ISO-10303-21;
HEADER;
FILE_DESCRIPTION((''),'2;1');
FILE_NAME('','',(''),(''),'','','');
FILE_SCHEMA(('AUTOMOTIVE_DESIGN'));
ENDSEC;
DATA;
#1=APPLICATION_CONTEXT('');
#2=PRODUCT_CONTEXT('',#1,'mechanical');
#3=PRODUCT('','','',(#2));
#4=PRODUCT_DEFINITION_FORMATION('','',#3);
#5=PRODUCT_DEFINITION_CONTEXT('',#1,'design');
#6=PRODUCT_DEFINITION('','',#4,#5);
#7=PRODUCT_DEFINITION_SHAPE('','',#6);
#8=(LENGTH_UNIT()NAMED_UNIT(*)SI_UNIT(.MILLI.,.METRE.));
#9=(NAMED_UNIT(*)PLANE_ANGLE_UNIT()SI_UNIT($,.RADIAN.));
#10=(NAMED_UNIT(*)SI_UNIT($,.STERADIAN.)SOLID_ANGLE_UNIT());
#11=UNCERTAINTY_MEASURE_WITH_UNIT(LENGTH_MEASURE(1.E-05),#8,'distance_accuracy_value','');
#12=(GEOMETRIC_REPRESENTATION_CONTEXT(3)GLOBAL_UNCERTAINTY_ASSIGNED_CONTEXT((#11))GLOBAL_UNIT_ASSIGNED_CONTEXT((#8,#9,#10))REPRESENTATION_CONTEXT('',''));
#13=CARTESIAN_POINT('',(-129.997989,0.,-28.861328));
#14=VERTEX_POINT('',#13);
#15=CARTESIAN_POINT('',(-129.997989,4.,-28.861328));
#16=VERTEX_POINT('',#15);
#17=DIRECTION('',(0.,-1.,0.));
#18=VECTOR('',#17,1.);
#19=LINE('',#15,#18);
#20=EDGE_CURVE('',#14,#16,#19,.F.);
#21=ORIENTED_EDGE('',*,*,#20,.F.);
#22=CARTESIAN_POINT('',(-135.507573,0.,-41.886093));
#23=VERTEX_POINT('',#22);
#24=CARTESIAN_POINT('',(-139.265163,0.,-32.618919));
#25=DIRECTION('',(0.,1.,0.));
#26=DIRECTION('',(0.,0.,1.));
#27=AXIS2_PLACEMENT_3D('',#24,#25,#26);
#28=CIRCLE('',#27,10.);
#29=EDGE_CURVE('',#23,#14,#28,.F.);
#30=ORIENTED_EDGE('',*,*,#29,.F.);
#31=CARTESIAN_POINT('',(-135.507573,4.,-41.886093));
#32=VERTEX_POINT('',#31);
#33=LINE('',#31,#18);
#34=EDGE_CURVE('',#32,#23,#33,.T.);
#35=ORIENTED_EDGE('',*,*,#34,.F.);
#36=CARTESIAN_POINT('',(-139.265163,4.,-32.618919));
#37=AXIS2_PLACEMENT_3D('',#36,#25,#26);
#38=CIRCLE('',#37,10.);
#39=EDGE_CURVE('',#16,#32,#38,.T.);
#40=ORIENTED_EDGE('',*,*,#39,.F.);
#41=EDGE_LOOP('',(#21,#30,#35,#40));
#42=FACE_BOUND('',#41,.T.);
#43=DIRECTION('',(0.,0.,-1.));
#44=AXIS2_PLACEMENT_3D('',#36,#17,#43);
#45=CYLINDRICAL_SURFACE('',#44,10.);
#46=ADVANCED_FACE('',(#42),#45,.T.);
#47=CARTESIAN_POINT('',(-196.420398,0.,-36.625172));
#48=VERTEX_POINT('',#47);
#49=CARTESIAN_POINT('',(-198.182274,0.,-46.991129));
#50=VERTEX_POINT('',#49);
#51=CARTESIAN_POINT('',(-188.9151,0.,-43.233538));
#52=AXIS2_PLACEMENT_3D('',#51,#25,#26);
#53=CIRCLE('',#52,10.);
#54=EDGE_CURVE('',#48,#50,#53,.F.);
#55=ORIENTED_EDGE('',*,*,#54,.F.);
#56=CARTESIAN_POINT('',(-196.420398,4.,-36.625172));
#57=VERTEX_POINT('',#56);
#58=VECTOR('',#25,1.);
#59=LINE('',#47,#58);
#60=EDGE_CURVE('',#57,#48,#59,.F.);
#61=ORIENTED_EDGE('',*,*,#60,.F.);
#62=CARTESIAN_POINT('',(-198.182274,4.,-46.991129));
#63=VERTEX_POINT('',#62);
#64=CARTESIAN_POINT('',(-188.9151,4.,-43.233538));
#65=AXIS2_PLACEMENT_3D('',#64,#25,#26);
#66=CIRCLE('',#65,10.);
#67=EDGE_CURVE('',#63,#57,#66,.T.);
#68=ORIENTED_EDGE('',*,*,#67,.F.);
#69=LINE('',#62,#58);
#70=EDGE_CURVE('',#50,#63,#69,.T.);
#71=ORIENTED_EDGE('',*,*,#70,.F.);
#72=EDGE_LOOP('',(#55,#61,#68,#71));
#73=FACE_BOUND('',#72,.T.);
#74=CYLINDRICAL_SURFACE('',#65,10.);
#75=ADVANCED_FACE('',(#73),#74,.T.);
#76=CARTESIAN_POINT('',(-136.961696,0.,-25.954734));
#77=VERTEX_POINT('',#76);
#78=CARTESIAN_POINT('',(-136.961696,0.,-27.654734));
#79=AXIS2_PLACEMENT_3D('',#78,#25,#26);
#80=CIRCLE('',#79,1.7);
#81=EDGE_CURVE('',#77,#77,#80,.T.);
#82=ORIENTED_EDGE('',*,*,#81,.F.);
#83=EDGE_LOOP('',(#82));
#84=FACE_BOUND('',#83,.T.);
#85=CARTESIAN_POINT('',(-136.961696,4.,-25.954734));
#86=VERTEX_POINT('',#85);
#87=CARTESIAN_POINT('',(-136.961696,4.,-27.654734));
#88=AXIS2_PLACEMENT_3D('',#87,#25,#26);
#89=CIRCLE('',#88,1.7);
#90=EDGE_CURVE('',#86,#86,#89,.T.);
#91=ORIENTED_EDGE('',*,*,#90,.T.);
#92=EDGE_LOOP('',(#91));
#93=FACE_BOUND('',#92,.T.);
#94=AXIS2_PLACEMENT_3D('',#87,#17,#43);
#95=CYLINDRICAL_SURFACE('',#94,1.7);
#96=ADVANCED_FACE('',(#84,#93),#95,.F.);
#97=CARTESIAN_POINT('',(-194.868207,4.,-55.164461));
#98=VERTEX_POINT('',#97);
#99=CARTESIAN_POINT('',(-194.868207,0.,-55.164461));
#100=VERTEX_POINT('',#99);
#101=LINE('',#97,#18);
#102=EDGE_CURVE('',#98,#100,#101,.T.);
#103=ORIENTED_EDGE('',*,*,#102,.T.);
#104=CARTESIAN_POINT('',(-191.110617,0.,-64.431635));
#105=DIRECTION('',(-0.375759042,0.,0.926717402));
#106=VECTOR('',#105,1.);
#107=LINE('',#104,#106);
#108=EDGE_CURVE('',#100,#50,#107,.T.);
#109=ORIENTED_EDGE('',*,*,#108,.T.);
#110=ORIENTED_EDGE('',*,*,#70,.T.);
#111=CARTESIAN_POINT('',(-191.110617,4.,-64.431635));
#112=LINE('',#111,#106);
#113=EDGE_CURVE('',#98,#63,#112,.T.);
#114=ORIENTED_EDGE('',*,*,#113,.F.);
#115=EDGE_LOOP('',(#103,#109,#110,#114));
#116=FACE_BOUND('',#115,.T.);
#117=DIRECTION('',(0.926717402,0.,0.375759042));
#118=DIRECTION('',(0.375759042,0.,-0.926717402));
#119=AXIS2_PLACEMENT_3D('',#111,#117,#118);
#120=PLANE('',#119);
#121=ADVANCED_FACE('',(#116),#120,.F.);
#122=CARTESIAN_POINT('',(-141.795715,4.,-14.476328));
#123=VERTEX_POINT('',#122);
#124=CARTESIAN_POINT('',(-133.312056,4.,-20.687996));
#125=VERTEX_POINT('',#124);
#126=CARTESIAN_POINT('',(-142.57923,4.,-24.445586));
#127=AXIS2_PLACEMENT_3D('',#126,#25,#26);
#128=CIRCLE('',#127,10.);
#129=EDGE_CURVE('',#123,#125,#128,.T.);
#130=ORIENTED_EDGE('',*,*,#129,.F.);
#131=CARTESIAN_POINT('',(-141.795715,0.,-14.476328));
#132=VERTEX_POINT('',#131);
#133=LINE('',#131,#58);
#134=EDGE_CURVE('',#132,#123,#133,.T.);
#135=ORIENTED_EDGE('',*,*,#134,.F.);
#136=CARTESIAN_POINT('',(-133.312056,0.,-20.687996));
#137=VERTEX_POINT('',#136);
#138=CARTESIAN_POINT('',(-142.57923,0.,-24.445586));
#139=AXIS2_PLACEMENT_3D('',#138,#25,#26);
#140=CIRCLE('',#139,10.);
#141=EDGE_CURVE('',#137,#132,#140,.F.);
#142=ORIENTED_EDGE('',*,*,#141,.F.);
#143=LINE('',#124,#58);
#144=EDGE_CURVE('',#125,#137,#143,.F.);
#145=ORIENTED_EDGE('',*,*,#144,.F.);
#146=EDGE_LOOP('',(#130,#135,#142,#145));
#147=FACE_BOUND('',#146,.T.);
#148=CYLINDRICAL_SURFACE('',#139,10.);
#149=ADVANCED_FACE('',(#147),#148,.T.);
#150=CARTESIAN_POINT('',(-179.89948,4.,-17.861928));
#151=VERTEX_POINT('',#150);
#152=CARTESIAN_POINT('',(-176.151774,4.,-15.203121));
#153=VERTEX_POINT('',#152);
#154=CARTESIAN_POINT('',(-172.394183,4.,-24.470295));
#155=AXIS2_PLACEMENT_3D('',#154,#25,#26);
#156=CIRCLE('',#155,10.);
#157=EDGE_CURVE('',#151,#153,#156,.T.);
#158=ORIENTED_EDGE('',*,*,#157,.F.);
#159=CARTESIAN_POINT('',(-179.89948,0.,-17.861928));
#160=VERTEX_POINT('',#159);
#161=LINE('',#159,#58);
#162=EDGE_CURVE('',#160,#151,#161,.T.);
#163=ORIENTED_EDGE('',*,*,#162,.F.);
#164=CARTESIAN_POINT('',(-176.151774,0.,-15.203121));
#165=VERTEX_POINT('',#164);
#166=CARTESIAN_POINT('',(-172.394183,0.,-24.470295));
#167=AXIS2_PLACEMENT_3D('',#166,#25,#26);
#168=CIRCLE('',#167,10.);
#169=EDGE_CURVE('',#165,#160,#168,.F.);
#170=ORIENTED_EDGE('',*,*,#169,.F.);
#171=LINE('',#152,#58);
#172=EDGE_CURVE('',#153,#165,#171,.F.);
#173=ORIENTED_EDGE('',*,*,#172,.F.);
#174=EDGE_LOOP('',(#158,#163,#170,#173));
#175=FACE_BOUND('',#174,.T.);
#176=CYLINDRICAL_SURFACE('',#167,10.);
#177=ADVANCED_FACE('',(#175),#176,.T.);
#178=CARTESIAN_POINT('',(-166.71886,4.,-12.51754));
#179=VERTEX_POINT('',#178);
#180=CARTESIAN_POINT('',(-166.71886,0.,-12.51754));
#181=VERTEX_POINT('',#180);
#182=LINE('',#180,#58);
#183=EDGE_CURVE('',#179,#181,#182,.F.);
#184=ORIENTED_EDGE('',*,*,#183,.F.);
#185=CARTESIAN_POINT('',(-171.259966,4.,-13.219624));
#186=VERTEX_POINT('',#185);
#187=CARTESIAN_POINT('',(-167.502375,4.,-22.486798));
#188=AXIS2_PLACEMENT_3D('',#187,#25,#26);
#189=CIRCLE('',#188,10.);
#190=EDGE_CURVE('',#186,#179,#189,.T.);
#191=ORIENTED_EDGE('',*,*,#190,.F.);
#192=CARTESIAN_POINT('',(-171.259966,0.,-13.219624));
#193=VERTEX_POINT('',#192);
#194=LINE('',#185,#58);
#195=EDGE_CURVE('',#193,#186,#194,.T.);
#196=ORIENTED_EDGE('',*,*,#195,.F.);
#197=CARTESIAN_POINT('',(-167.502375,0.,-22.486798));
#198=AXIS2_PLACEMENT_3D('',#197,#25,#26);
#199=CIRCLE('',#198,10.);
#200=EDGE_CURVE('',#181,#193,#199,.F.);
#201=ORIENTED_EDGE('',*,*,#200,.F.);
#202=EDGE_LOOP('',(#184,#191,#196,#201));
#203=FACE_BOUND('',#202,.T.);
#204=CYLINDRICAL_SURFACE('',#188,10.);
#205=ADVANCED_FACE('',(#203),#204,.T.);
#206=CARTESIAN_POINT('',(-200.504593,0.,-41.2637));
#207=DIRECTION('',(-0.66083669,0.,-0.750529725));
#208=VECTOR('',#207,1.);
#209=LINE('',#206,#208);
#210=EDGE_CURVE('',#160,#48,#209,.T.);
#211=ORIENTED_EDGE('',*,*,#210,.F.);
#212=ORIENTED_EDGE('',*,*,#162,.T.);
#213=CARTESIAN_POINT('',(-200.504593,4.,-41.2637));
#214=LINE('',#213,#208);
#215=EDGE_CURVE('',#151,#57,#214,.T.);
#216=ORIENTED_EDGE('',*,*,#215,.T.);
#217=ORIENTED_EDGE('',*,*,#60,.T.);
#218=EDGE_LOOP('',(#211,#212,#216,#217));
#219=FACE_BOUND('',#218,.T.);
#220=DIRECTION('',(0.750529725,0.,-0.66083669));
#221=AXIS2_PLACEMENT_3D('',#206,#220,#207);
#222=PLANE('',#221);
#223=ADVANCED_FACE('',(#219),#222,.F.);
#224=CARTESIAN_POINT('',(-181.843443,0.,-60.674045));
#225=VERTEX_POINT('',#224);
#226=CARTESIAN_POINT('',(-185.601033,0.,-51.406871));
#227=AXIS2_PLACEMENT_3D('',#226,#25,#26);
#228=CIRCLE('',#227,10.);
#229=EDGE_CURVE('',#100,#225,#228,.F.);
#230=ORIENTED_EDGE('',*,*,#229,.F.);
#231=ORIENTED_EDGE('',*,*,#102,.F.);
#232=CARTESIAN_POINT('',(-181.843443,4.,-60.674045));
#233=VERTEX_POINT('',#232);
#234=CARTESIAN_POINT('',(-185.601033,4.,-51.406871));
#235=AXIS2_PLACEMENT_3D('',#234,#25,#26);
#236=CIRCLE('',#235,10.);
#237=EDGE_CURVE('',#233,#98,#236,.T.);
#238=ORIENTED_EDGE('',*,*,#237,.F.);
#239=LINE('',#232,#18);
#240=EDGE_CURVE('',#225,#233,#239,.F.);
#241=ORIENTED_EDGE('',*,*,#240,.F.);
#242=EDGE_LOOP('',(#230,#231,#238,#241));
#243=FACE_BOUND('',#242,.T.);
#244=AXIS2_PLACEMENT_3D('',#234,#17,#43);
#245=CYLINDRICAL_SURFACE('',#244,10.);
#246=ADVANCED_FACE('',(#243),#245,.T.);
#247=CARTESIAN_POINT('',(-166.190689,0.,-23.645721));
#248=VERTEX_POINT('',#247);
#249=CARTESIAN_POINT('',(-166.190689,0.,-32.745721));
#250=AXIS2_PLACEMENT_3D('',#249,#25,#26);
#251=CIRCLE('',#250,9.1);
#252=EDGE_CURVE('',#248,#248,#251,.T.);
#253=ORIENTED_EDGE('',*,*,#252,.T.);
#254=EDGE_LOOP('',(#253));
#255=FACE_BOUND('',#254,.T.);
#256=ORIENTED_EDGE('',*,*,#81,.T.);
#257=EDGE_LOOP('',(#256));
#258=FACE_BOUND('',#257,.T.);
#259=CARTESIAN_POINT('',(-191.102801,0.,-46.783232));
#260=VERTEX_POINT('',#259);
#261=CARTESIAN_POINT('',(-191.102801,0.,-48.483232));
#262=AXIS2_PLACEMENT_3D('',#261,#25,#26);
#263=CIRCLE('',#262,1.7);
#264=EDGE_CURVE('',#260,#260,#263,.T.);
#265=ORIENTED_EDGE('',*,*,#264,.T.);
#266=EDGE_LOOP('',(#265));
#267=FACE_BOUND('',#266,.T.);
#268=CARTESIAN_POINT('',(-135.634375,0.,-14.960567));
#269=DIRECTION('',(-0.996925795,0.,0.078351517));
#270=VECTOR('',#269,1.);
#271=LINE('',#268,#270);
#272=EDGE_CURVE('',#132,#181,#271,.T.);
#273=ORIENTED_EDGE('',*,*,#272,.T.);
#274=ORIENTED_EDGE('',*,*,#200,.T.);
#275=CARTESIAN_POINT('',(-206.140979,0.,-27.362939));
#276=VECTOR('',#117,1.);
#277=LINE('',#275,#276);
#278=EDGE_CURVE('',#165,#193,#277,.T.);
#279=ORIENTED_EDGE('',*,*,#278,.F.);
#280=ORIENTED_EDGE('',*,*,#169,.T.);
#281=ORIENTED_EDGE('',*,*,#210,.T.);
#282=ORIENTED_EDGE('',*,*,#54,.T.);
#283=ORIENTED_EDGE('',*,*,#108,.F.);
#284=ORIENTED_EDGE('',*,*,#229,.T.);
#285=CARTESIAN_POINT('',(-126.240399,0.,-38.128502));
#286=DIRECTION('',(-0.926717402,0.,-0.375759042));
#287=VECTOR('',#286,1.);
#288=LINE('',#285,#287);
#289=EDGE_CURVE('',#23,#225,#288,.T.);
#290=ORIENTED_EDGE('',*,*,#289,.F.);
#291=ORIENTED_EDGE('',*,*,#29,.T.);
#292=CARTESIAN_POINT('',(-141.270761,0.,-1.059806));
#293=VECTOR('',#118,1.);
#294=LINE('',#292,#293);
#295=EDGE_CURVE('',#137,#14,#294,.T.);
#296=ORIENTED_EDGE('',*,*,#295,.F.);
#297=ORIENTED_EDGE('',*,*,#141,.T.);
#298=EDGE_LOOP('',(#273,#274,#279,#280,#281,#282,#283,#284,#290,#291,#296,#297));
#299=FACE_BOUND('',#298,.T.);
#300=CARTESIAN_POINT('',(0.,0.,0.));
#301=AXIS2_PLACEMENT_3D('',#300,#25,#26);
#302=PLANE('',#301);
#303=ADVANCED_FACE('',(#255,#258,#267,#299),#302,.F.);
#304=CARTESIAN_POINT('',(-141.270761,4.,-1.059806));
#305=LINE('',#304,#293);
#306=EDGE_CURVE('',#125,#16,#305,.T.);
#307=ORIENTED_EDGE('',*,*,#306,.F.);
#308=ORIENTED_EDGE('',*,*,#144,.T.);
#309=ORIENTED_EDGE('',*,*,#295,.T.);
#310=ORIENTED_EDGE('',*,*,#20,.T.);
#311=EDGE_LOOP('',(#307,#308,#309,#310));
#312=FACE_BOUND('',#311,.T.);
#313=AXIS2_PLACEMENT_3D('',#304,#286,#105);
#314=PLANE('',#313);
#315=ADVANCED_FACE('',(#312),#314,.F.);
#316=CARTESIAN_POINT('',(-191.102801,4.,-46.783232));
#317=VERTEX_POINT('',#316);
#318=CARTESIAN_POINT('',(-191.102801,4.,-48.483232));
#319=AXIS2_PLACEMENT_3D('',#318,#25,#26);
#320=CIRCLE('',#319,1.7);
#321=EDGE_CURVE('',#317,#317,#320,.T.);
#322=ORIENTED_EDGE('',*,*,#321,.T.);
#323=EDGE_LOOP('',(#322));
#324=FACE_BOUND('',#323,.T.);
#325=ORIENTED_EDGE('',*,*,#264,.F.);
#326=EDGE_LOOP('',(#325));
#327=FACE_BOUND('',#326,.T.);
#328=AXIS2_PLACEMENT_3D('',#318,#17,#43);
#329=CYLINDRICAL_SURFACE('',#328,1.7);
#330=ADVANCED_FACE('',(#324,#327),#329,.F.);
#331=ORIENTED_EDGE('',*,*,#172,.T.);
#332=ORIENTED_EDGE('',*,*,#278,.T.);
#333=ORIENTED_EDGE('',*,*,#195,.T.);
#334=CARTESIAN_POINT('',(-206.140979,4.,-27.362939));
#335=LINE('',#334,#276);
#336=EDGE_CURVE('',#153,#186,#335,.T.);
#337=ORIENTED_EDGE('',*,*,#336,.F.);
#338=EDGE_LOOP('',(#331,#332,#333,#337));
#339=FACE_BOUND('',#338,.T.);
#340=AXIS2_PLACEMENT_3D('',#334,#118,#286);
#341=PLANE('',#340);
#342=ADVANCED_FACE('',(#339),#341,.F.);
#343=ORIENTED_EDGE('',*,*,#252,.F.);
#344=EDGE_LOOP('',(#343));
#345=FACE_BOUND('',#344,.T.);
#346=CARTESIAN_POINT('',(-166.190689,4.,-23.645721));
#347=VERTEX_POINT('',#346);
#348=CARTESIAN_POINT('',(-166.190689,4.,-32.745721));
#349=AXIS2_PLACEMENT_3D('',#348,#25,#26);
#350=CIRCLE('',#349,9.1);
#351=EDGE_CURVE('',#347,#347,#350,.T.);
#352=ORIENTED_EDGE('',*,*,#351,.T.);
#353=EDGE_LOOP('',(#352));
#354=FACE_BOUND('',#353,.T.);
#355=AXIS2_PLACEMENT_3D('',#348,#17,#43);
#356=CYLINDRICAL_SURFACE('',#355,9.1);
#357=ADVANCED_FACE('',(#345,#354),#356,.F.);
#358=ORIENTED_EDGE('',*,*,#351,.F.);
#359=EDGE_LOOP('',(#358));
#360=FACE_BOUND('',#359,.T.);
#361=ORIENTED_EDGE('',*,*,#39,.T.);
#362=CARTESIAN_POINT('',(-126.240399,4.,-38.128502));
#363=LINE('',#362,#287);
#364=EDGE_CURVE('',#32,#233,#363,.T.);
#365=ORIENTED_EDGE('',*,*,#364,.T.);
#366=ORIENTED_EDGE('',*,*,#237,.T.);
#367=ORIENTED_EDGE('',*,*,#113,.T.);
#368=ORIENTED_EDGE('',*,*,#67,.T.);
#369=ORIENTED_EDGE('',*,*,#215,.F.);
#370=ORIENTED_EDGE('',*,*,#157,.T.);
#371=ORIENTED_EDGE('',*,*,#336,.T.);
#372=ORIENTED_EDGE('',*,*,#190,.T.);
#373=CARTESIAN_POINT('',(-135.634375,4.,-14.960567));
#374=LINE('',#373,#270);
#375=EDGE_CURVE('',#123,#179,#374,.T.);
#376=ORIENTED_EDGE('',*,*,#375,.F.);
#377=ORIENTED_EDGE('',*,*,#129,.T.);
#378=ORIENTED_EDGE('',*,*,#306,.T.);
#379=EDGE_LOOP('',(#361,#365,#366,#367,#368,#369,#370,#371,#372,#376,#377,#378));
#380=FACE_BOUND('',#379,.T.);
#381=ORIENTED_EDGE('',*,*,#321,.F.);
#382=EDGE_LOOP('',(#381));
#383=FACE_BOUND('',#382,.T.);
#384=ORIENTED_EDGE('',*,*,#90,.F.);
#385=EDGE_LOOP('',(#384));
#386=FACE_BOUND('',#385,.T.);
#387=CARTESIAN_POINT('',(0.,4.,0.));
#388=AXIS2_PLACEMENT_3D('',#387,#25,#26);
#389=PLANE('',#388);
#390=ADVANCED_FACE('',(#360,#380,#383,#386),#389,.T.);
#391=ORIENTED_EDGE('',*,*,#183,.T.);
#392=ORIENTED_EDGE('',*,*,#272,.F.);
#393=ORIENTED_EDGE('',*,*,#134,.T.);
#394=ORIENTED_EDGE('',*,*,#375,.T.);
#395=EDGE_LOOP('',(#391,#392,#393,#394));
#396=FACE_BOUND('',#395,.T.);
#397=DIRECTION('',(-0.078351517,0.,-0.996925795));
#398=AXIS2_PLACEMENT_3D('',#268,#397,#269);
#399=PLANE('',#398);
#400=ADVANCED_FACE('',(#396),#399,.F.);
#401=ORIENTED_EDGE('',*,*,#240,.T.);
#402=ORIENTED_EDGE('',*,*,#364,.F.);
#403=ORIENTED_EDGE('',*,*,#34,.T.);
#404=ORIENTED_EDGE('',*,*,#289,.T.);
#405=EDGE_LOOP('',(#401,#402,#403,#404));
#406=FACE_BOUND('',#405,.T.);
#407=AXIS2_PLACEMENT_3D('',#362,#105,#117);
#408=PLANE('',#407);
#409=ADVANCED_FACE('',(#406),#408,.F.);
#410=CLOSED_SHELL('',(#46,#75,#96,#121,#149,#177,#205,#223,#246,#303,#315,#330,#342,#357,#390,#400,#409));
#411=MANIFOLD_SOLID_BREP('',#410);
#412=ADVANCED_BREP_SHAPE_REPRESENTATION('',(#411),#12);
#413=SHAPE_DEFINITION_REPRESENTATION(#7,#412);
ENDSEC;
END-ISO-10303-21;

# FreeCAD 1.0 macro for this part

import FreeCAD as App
import Part
import Sketcher
from FreeCAD import Vector


def edges_at(feature, points):
    """Names of the edges that pass closest to the given points."""
    edges = feature.Shape.Edges
    near = lambda p: min(range(len(edges)), key=lambda i: edges[i].distToShape(Part.Vertex(*p))[0])
    return sorted({f"Edge{near(p) + 1}" for p in points})

doc = App.newDocument("Part")
body = doc.addObject("PartDesign::Body", "Body")

sketch1 = body.newObject("Sketcher::SketchObject", "Sketch")
sketch1.AttachmentSupport = (doc.getObject("XZ_Plane"), [""])
sketch1.MapMode = "FlatFace"
sketch1.addGeometry(Part.LineSegment(Vector(-126.2, -38.1, 0), Vector(-191.1, -64.4, 0)), False)
sketch1.addGeometry(Part.LineSegment(Vector(-191.1, -64.4, 0), Vector(-206.1, -27.4, 0)), False)
sketch1.addGeometry(Part.LineSegment(Vector(-206.1, -27.4, 0), Vector(-141.3, -1.1, 0)), False)
sketch1.addGeometry(Part.LineSegment(Vector(-141.3, -1.1, 0), Vector(-126.2, -38.1, 0)), False)
sketch1.addGeometry(Part.Circle(Vector(-166.2, -32.7, 0), Vector(0, 0, 1), 9.1), False)
sketch1.addGeometry(Part.Circle(Vector(-137, -27.7, 0), Vector(0, 0, 1), 1.7), False)
sketch1.addGeometry(Part.Circle(Vector(-191.1, -48.5, 0), Vector(0, 0, 1), 1.7), False)
sketch1.addConstraint(Sketcher.Constraint("Coincident", 0, 2, 1, 1))
sketch1.addConstraint(Sketcher.Constraint("Coincident", 1, 2, 2, 1))
sketch1.addConstraint(Sketcher.Constraint("Coincident", 2, 2, 3, 1))
sketch1.addConstraint(Sketcher.Constraint("Coincident", 3, 2, 0, 1))
sketch1.addConstraint(Sketcher.Constraint("Equal", 5, 6))
sketch1.addConstraint(Sketcher.Constraint("Perpendicular", 0, 1))
sketch1.addConstraint(Sketcher.Constraint("Perpendicular", 1, 2))
sketch1.addConstraint(Sketcher.Constraint("Perpendicular", 2, 3))
sketch1.addConstraint(Sketcher.Constraint("Diameter", 4, 18.2))
sketch1.addConstraint(Sketcher.Constraint("Diameter", 5, 3.4))
sketch1.addConstraint(Sketcher.Constraint("Distance", 0, 70.0))
sketch1.addConstraint(Sketcher.Constraint("Distance", 1, 40.0))
sketch1.addConstraint(Sketcher.Constraint("DistanceX", 6, 3, -1, 1, 191.102801))
sketch1.addConstraint(Sketcher.Constraint("DistanceX", 3, 2, -1, 1, 126.240399))
sketch1.addConstraint(Sketcher.Constraint("DistanceY", 6, 3, 5, 3, 20.828498))
sketch1.addConstraint(Sketcher.Constraint("DistanceY", 0, 2, 5, 3, 36.776901))
sketch1.addConstraint(Sketcher.Constraint("DistanceX", 4, 3, -1, 1, 166.190689))
sketch1.addConstraint(Sketcher.Constraint("DistanceY", 4, 3, -1, 1, 32.745721))
sketch1.addConstraint(Sketcher.Constraint("DistanceX", 1, 2, -1, 1, 206.140979))
sketch1.addConstraint(Sketcher.Constraint("DistanceY", 1, 2, -1, 1, 27.362939))
sketch1.addConstraint(Sketcher.Constraint("DistanceX", 0, 2, 5, 3, 54.148921))
pad1 = body.newObject("PartDesign::Pad", "Pad")
pad1.Profile = sketch1
pad1.Length = 4
pad1.Reversed = True

sketch2 = body.newObject("Sketcher::SketchObject", "Sketch001")
sketch2.AttachmentSupport = (doc.getObject("XZ_Plane"), [""])
sketch2.MapMode = "FlatFace"
sketch2.AttachmentOffset = App.Placement(Vector(0, 0, -4), App.Rotation())
sketch2.addGeometry(Part.LineSegment(Vector(-136, -15, 0), Vector(-169, -12, 0)), False)
sketch2.addGeometry(Part.LineSegment(Vector(-169, -12, 0), Vector(-141, -1, 0)), False)
sketch2.addGeometry(Part.LineSegment(Vector(-141, -1, 0), Vector(-136, -15, 0)), False)
sketch2.addGeometry(Part.LineSegment(Vector(-178, -16, 0), Vector(-201, -41, 0)), False)
sketch2.addGeometry(Part.LineSegment(Vector(-201, -41, 0), Vector(-206, -27, 0)), False)
sketch2.addGeometry(Part.LineSegment(Vector(-206, -27, 0), Vector(-178, -16, 0)), False)
sketch2.addConstraint(Sketcher.Constraint("Coincident", 0, 2, 1, 1))
sketch2.addConstraint(Sketcher.Constraint("Coincident", 1, 2, 2, 1))
sketch2.addConstraint(Sketcher.Constraint("Coincident", 2, 2, 0, 1))
sketch2.addConstraint(Sketcher.Constraint("Coincident", 3, 2, 4, 1))
sketch2.addConstraint(Sketcher.Constraint("Coincident", 4, 2, 5, 1))
sketch2.addConstraint(Sketcher.Constraint("Coincident", 5, 2, 3, 1))
sketch2.addConstraint(Sketcher.Constraint("Perpendicular", 1, 2))
sketch2.addConstraint(Sketcher.Constraint("Parallel", 2, 4))
sketch2.addConstraint(Sketcher.Constraint("Perpendicular", 4, 5))
sketch2.addConstraint(Sketcher.Constraint("Equal", 0, 3))
sketch2.addConstraint(Sketcher.Constraint("Equal", 2, 4))
sketch2.addConstraint(Sketcher.Constraint("Distance", 1, 30.0))
sketch2.addConstraint(Sketcher.Constraint("Distance", 2, 15.0))
sketch2.addConstraint(Sketcher.Constraint("DistanceY", 3, 2, -1, 1, 41.2637))
sketch2.addConstraint(Sketcher.Constraint("DistanceY", 5, 2, 2, 2, 1.129601))
sketch2.addConstraint(Sketcher.Constraint("DistanceX", 1, 2, -1, 1, 141.270761))
sketch2.addConstraint(Sketcher.Constraint("DistanceX", 4, 2, -1, 1, 206.140979))
sketch2.addConstraint(Sketcher.Constraint("DistanceY", 4, 2, -1, 1, 27.362939))
pocket1 = body.newObject("PartDesign::Pocket", "Pocket")
pocket1.Profile = sketch2
pocket1.Length = 4
pocket1.Reversed = True
doc.recompute()

fillet = body.newObject("PartDesign::Fillet", "Fillet")
fillet.Base = (pocket1, edges_at(pocket1, [
    (-135.634, 2, -14.961),
    (-169.072, 2, -12.333),
    (-200.505, 2, -41.264),
    (-178.339, 2, -16.09),
    (-191.111, 2, -64.432),
    (-126.24, 2, -38.129),
]))
fillet.Radius = 10

doc.recompute()
